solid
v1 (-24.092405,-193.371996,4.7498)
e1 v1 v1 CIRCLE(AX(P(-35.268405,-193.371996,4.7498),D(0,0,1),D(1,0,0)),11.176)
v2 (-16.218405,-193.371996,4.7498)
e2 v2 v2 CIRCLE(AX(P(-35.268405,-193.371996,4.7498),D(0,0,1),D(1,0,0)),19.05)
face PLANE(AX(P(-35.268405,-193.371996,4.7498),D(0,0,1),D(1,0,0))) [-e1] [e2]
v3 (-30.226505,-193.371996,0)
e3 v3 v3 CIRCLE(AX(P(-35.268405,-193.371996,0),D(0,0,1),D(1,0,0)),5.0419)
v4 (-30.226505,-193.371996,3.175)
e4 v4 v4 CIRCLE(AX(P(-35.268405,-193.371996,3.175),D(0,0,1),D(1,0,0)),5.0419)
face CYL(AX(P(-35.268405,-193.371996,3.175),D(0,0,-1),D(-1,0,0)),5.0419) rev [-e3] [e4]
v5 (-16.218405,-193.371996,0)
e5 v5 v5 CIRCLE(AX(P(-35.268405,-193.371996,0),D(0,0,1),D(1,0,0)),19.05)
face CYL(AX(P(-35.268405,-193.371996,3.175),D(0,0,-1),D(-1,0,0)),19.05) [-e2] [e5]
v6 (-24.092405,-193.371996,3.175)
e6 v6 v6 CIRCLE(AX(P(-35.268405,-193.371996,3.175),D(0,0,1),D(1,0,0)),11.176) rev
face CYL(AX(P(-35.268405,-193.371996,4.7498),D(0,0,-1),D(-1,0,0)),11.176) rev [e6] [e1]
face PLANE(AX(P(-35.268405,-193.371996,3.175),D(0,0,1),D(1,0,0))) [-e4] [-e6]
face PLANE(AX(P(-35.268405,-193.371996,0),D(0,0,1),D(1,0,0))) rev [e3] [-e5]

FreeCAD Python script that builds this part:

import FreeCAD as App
import Part
import Sketcher
Q = App.Units.Quantity

doc = App.newDocument("Part")
body = doc.addObject("PartDesign::Body", "Body")

# Sketch on XY plane
sketch1 = body.newObject("Sketcher::SketchObject", "Sketch")
sketch1.AttachmentSupport = (doc.getObject("XY_Plane"), [""])
sketch1.MapMode = "FlatFace"
sketch1.addGeometry([
    Part.Circle(App.Vector(-35.268405, -193.371996, 0), App.Vector(0, 0, 1), 19.05),
    Part.Circle(App.Vector(-35.268405, -193.371996, 0), App.Vector(0, 0, 1), 5.0419),
], False)
sketch1.addConstraint([
    Sketcher.Constraint("Coincident", 1, 3, 0, 3),
    Sketcher.Constraint("Diameter", 0, Q("1.5 in")),
    Sketcher.Constraint("Diameter", 1, Q("0.397 in")),
    Sketcher.Constraint("DistanceX", 0, 3, -1, 1, Q("35.268405 mm")),
    Sketcher.Constraint("DistanceY", 0, 3, -1, 1, Q("193.371996 mm")),
])
pad1 = body.newObject("PartDesign::Pad", "Pad")
pad1.Profile = sketch1
pad1.Length = Q("0.125 in")

# Sketch on XY plane
sketch2 = body.newObject("Sketcher::SketchObject", "Sketch001")
sketch2.AttachmentSupport = (doc.getObject("XY_Plane"), [""])
sketch2.MapMode = "FlatFace"
sketch2.AttachmentOffset = App.Placement(App.Vector(0, 0, 0.125 * 25.4), App.Rotation())
sketch2.addGeometry([
    Part.Circle(App.Vector(-35.268405, -193.371996, 0), App.Vector(0, 0, 1), 19.05),
    Part.Circle(App.Vector(-35.268405, -193.371996, 0), App.Vector(0, 0, 1), 11.176),
], False)
sketch2.addConstraint([
    Sketcher.Constraint("Coincident", 1, 3, 0, 3),
    Sketcher.Constraint("Diameter", 0, Q("1.5 in")),
    Sketcher.Constraint("Diameter", 1, Q("0.88 in")),
    Sketcher.Constraint("DistanceX", 0, 3, -1, 1, Q("35.268405 mm")),
    Sketcher.Constraint("DistanceY", 0, 3, -1, 1, Q("193.371996 mm")),
])
pad2 = body.newObject("PartDesign::Pad", "Pad001")
pad2.Profile = sketch2
pad2.Length = Q("0.062 in")

doc.recompute()
